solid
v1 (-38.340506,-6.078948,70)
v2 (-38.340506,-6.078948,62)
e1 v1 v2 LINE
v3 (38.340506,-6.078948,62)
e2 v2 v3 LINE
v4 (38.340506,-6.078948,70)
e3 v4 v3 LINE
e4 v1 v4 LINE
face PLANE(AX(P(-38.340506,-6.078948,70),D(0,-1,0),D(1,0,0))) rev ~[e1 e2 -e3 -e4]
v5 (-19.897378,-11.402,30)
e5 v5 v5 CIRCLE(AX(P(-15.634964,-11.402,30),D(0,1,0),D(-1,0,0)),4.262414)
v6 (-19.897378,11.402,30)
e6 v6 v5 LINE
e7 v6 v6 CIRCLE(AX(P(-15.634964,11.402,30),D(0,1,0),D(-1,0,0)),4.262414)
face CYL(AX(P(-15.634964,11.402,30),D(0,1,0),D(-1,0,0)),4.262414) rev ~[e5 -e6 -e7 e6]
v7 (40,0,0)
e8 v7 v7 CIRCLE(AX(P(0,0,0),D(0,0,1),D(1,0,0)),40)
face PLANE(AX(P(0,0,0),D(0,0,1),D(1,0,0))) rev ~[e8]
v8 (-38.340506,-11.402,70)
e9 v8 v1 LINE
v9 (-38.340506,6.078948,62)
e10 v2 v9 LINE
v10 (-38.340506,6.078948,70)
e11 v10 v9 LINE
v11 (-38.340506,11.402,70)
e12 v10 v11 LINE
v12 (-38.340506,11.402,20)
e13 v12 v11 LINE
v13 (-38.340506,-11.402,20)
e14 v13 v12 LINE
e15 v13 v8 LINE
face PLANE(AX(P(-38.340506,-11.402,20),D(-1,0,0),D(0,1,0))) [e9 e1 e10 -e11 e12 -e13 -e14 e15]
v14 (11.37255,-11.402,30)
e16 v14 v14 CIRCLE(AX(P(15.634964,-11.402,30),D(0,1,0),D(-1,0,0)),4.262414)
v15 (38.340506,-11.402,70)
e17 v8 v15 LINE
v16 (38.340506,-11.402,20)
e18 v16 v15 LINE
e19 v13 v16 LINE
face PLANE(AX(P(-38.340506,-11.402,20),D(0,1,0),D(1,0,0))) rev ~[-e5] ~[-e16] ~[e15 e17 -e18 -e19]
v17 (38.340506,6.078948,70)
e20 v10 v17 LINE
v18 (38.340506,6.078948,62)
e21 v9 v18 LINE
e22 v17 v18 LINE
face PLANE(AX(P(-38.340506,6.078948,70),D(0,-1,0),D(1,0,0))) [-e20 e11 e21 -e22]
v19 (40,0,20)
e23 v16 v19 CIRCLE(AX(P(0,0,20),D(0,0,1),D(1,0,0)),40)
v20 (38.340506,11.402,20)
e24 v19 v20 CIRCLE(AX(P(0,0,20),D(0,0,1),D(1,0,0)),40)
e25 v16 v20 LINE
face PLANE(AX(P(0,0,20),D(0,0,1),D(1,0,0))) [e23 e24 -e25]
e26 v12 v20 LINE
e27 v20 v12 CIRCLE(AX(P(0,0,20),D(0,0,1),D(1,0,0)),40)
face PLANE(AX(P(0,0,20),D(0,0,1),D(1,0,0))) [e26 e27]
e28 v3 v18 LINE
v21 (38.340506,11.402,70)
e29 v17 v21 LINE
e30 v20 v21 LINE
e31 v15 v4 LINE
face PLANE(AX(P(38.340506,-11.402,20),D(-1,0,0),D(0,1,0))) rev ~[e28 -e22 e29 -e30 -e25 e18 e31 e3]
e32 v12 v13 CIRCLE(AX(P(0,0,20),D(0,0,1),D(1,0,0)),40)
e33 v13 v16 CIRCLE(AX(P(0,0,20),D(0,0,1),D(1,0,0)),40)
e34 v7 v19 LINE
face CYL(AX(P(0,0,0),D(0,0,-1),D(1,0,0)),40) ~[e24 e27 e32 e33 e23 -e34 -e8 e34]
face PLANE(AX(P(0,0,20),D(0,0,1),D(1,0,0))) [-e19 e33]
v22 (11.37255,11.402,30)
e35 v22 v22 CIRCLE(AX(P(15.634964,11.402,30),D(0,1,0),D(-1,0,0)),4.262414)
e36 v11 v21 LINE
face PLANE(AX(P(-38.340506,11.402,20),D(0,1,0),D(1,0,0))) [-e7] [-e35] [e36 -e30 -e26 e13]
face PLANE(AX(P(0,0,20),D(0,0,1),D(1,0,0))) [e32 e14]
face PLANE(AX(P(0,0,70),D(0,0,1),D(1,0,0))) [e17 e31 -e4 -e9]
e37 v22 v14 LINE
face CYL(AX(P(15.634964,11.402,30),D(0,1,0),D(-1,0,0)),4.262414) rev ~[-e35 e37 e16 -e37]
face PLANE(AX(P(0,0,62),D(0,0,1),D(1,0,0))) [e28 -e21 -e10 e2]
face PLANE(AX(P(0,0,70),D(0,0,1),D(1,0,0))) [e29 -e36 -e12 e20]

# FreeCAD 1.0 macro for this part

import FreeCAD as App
import Part
import Sketcher

V = App.Vector


def add_polygon(sketch, points):
    """Adds a closed chain of lines whose ends are joined by coincident constraints."""
    first, n = sketch.GeometryCount, len(points)
    for a, b in zip(points, points[1:] + points[:1]):
        sketch.addGeometry(Part.LineSegment(App.Vector(*a, 0), App.Vector(*b, 0)), False)
    for i in range(n):
        sketch.addConstraint(Sketcher.Constraint("Coincident", first + i, 2, first + (i + 1) % n, 1))

doc = App.newDocument("Part")
body = doc.addObject("PartDesign::Body", "Body")

# Sketch on XY plane
sketch1 = body.newObject("Sketcher::SketchObject", "Sketch")
sketch1.AttachmentSupport = (doc.getObject("XY_Plane"), [""])
sketch1.MapMode = "FlatFace"
sketch1.addGeometry(Part.Circle(V(0, 0, 0), V(0, 0, 1), 40), False)
sketch1.addConstraint(Sketcher.Constraint("Coincident", 0, 3, -1, 1))
sketch1.addConstraint(Sketcher.Constraint("Diameter", 0, 80.0))
pad1 = body.newObject("PartDesign::Pad", "Pad")
pad1.Profile = sketch1
pad1.Length = 20

# Sketch on XY plane
sketch2 = body.newObject("Sketcher::SketchObject", "Sketch001")
sketch2.AttachmentSupport = (doc.getObject("XY_Plane"), [""])
sketch2.MapMode = "FlatFace"
sketch2.AttachmentOffset = App.Placement(V(0, 0, 20), App.Rotation())
add_polygon(sketch2, [(-38, 11), (-38, -11), (38, -11), (38, 11)])  # lines 0-3
sketch2.addConstraint(Sketcher.Constraint("Vertical", 0))
sketch2.addConstraint(Sketcher.Constraint("Horizontal", 1))
sketch2.addConstraint(Sketcher.Constraint("Vertical", 2))
sketch2.addConstraint(Sketcher.Constraint("Horizontal", 3))
sketch2.addConstraint(Sketcher.Constraint("Symmetric", 0, 2, 2, 2, -1, 1))
sketch2.addConstraint(Sketcher.Constraint("DistanceY", 0, 2, 0, 1, 22.804))
sketch2.addConstraint(Sketcher.Constraint("DistanceX", 1, 1, 1, 2, 76.681012))
pad2 = body.newObject("PartDesign::Pad", "Pad001")
pad2.Profile = sketch2
pad2.Length = 50

# Sketch on XY plane
sketch3 = body.newObject("Sketcher::SketchObject", "Sketch002")
sketch3.AttachmentSupport = (doc.getObject("XY_Plane"), [""])
sketch3.MapMode = "FlatFace"
sketch3.AttachmentOffset = App.Placement(V(0, 0, 70), App.Rotation())
add_polygon(sketch3, [(-38, 6), (-38, -6), (38, -6), (38, 6)])  # lines 0-3
sketch3.addConstraint(Sketcher.Constraint("Vertical", 0))
sketch3.addConstraint(Sketcher.Constraint("Horizontal", 1))
sketch3.addConstraint(Sketcher.Constraint("Vertical", 2))
sketch3.addConstraint(Sketcher.Constraint("Horizontal", 3))
sketch3.addConstraint(Sketcher.Constraint("Symmetric", 0, 2, 2, 2, -1, 1))
sketch3.addConstraint(Sketcher.Constraint("DistanceX", 1, 1, 1, 2, 76.681012))
sketch3.addConstraint(Sketcher.Constraint("DistanceY", 0, 2, 0, 1, 12.157896))
pocket1 = body.newObject("PartDesign::Pocket", "Pocket")
pocket1.Profile = sketch3
pocket1.Length = 8

# Sketch on XZ plane
sketch4 = body.newObject("Sketcher::SketchObject", "Sketch003")
sketch4.AttachmentSupport = (doc.getObject("XZ_Plane"), [""])
sketch4.MapMode = "FlatFace"
sketch4.AttachmentOffset = App.Placement(V(0, 0, -11.402), App.Rotation())
sketch4.addGeometry(Part.Circle(V(15.6, 30, 0), V(0, 0, 1), 4.3), False)
sketch4.addGeometry(Part.Circle(V(-15.6, 30, 0), V(0, 0, 1), 4.3), False)
sketch4.addConstraint(Sketcher.Constraint("Equal", 0, 1))
sketch4.addConstraint(Sketcher.Constraint("Symmetric", 0, 3, 1, 3, -2))
sketch4.addConstraint(Sketcher.Constraint("DistanceY", -1, 1, 0, 3, 30.0))
sketch4.addConstraint(Sketcher.Constraint("Diameter", 0, 8.524828))
sketch4.addConstraint(Sketcher.Constraint("DistanceX", 1, 3, 0, 3, 31.269928))
pocket2 = body.newObject("PartDesign::Pocket", "Pocket001")
pocket2.Profile = sketch4
pocket2.Type = "ThroughAll"
pocket2.Reversed = True

doc.recompute()
